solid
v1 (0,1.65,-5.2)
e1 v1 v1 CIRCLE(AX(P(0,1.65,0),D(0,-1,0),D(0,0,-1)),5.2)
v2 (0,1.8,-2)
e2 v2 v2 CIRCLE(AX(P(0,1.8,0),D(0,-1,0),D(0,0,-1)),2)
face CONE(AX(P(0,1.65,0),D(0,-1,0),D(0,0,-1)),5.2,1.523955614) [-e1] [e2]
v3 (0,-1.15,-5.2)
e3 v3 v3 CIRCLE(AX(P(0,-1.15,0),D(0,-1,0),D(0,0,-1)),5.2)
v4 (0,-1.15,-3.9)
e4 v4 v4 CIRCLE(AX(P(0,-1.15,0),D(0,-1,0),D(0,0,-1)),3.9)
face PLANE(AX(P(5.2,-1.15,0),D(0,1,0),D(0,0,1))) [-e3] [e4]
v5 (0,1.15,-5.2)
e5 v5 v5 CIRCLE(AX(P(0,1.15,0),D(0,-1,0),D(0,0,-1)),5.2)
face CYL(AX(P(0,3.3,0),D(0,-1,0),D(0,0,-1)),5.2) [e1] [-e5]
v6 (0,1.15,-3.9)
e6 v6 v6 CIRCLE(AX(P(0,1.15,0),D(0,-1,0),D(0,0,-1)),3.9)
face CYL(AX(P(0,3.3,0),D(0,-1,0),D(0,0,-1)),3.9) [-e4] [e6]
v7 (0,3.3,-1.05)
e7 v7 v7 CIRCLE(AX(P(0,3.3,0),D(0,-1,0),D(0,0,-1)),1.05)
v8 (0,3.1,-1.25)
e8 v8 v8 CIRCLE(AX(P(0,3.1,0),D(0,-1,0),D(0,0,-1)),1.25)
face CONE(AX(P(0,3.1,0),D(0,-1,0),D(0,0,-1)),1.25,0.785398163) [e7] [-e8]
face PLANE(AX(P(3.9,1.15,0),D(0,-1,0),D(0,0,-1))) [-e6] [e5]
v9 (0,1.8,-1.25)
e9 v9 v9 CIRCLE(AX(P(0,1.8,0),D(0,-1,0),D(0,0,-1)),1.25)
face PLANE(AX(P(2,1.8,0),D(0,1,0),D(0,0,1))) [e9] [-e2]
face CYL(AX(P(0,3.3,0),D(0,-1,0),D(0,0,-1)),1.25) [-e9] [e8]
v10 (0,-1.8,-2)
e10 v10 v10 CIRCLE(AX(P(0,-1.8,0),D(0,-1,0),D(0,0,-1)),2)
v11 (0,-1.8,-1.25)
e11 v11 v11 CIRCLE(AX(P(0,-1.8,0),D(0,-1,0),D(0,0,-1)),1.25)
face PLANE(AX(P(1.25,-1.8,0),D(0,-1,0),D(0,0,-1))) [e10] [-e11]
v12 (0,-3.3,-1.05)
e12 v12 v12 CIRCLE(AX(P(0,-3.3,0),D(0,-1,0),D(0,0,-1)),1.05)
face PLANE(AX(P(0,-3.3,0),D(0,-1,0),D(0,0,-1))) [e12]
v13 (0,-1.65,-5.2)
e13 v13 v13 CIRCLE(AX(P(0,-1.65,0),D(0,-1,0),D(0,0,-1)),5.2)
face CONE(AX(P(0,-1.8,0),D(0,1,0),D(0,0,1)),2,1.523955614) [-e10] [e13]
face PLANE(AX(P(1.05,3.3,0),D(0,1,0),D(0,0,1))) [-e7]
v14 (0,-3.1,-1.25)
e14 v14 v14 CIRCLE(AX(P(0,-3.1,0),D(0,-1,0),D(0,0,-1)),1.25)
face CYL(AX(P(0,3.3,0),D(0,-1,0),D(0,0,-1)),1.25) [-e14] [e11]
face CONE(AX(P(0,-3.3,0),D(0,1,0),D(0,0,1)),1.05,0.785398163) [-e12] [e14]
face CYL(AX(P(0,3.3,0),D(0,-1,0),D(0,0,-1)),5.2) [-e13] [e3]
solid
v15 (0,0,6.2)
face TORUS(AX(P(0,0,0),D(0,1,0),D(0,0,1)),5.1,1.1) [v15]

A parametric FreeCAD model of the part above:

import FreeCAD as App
import Part
import Sketcher
from FreeCAD import Vector


def add_polygon(sketch, points):
    """Adds a closed chain of lines whose ends are joined by coincident constraints."""
    first, n = sketch.GeometryCount, len(points)
    for a, b in zip(points, points[1:] + points[:1]):
        sketch.addGeometry(Part.LineSegment(App.Vector(*a, 0), App.Vector(*b, 0)), False)
    for i in range(n):
        sketch.addConstraint(Sketcher.Constraint("Coincident", first + i, 2, first + (i + 1) % n, 1))

doc = App.newDocument("Part")
params = doc.addObject("Spreadsheet::Sheet", "Params")
for row, (alias, value) in enumerate([
    ("sketch1_width", "1.3 mm"),
    ("sketch1_height", "6.6 mm"),
    ("sketch1_height2", "0.5 mm"),
    ("sketch1_height3", "2.3 mm"),
    ("sketch1_width2", "1.05 mm"),
    ("revolution_angle", "360 deg"),
    ("sketch2_diameter", "2.2 mm"),
    ("revolution2_angle", "360 deg"),
], start=1):
    params.set(f"A{row}", alias)
    params.set(f"B{row}", "=" + value)
    params.setAlias(f"B{row}", alias)

body = doc.addObject("PartDesign::Body", "Body")

# Sketch on XY plane
sketch1 = body.newObject("Sketcher::SketchObject", "Sketch")
sketch1.AttachmentSupport = (doc.getObject("XY_Plane"), [""])
sketch1.MapMode = "FlatFace"
add_polygon(sketch1, [(1.05, 3.3), (0, 3.3), (0, -3.3), (1.05, -3.3), (1.25, -3.1), (1.25, -1.8), (2, -1.8), (5.2, -1.65), (5.2, -1.15), (3.9, -1.15), (3.9, 1.15), (5.2, 1.15), (5.2, 1.65), (2, 1.8), (1.25, 1.8), (1.25, 3.1)])  # lines 0-15
sketch1.addConstraint(Sketcher.Constraint("Horizontal", 0))
sketch1.addConstraint(Sketcher.Constraint("Vertical", 1))
sketch1.addConstraint(Sketcher.Constraint("Horizontal", 2))
sketch1.addConstraint(Sketcher.Constraint("Vertical", 4))
sketch1.addConstraint(Sketcher.Constraint("Horizontal", 5))
sketch1.addConstraint(Sketcher.Constraint("Vertical", 7))
sketch1.addConstraint(Sketcher.Constraint("Horizontal", 8))
sketch1.addConstraint(Sketcher.Constraint("Vertical", 9))
sketch1.addConstraint(Sketcher.Constraint("Horizontal", 10))
sketch1.addConstraint(Sketcher.Constraint("Vertical", 11))
sketch1.addConstraint(Sketcher.Constraint("Horizontal", 13))
sketch1.addConstraint(Sketcher.Constraint("Vertical", 14))
sketch1.addConstraint(Sketcher.Constraint("Symmetric", 0, 2, 1, 2, -1, 1))
sketch1.addConstraint(Sketcher.Constraint("Symmetric", 7, 2, 10, 2, -1))
sketch1.addConstraint(Sketcher.Constraint("Symmetric", 5, 2, 12, 2, -1))
sketch1.addConstraint(Sketcher.Constraint("Symmetric", 3, 2, 14, 2, -1))
sketch1.addConstraint(Sketcher.Constraint("Perpendicular", 3, 15))
sketch1.addConstraint(Sketcher.Constraint("Vertical", 2, 2, 15, 2))
sketch1.addConstraint(Sketcher.Constraint("Equal", 10, 4))
sketch1.addConstraint(Sketcher.Constraint("Equal", 7, 11))
sketch1.addConstraint(Sketcher.Constraint("DistanceX", 8, 2, 8, 1, 1.3))
sketch1.addConstraint(Sketcher.Constraint("DistanceY", 1, 2, 1, 1, 6.6))
sketch1.addConstraint(Sketcher.Constraint("DistanceY", 7, 1, 7, 2, 0.5))
sketch1.addConstraint(Sketcher.Constraint("DistanceY", 9, 1, 9, 2, 2.3))
sketch1.addConstraint(Sketcher.Constraint("DistanceX", -1, 1, 5, 2, 2.0))
sketch1.addConstraint(Sketcher.Constraint("DistanceX", 0, 2, 0, 1, 1.05))
sketch1.addConstraint(Sketcher.Constraint("DistanceX", 5, 1, 5, 2, 0.75))
sketch1.addConstraint(Sketcher.Constraint("DistanceX", -1, 1, 6, 2, 5.2))
sketch1.setExpression("Constraints[36]", "Params.sketch1_width")
sketch1.setExpression("Constraints[37]", "Params.sketch1_height")
sketch1.setExpression("Constraints[38]", "Params.sketch1_height2")
sketch1.setExpression("Constraints[39]", "Params.sketch1_height3")
sketch1.setExpression("Constraints[41]", "Params.sketch1_width2")
revolution = body.newObject("PartDesign::Revolution", "Revolution")
revolution.Profile = sketch1
revolution.ReferenceAxis = (sketch1, ["V_Axis"])
revolution.setExpression("Angle", "Params.revolution_angle")
body2 = doc.addObject("PartDesign::Body", "Body001")

# Sketch on XY plane
sketch2 = body2.newObject("Sketcher::SketchObject", "Sketch001")
sketch2.AttachmentSupport = (doc.getObject("XY_Plane001"), [""])
sketch2.MapMode = "FlatFace"
sketch2.addGeometry(Part.Circle(Vector(5.1, 0, 0), Vector(0, 0, 1), 1.1), False)
sketch2.addConstraint(Sketcher.Constraint("PointOnObject", 0, 3, -1))
sketch2.addConstraint(Sketcher.Constraint("Diameter", 0, 2.2))
sketch2.addConstraint(Sketcher.Constraint("DistanceX", -1, 1, 0, 3, 5.1))
sketch2.setExpression("Constraints[1]", "Params.sketch2_diameter")
revolution2 = body2.newObject("PartDesign::Revolution", "Revolution001")
revolution2.Profile = sketch2
revolution2.ReferenceAxis = (sketch2, ["V_Axis"])
revolution2.setExpression("Angle", "Params.revolution2_angle")

doc.recompute()
